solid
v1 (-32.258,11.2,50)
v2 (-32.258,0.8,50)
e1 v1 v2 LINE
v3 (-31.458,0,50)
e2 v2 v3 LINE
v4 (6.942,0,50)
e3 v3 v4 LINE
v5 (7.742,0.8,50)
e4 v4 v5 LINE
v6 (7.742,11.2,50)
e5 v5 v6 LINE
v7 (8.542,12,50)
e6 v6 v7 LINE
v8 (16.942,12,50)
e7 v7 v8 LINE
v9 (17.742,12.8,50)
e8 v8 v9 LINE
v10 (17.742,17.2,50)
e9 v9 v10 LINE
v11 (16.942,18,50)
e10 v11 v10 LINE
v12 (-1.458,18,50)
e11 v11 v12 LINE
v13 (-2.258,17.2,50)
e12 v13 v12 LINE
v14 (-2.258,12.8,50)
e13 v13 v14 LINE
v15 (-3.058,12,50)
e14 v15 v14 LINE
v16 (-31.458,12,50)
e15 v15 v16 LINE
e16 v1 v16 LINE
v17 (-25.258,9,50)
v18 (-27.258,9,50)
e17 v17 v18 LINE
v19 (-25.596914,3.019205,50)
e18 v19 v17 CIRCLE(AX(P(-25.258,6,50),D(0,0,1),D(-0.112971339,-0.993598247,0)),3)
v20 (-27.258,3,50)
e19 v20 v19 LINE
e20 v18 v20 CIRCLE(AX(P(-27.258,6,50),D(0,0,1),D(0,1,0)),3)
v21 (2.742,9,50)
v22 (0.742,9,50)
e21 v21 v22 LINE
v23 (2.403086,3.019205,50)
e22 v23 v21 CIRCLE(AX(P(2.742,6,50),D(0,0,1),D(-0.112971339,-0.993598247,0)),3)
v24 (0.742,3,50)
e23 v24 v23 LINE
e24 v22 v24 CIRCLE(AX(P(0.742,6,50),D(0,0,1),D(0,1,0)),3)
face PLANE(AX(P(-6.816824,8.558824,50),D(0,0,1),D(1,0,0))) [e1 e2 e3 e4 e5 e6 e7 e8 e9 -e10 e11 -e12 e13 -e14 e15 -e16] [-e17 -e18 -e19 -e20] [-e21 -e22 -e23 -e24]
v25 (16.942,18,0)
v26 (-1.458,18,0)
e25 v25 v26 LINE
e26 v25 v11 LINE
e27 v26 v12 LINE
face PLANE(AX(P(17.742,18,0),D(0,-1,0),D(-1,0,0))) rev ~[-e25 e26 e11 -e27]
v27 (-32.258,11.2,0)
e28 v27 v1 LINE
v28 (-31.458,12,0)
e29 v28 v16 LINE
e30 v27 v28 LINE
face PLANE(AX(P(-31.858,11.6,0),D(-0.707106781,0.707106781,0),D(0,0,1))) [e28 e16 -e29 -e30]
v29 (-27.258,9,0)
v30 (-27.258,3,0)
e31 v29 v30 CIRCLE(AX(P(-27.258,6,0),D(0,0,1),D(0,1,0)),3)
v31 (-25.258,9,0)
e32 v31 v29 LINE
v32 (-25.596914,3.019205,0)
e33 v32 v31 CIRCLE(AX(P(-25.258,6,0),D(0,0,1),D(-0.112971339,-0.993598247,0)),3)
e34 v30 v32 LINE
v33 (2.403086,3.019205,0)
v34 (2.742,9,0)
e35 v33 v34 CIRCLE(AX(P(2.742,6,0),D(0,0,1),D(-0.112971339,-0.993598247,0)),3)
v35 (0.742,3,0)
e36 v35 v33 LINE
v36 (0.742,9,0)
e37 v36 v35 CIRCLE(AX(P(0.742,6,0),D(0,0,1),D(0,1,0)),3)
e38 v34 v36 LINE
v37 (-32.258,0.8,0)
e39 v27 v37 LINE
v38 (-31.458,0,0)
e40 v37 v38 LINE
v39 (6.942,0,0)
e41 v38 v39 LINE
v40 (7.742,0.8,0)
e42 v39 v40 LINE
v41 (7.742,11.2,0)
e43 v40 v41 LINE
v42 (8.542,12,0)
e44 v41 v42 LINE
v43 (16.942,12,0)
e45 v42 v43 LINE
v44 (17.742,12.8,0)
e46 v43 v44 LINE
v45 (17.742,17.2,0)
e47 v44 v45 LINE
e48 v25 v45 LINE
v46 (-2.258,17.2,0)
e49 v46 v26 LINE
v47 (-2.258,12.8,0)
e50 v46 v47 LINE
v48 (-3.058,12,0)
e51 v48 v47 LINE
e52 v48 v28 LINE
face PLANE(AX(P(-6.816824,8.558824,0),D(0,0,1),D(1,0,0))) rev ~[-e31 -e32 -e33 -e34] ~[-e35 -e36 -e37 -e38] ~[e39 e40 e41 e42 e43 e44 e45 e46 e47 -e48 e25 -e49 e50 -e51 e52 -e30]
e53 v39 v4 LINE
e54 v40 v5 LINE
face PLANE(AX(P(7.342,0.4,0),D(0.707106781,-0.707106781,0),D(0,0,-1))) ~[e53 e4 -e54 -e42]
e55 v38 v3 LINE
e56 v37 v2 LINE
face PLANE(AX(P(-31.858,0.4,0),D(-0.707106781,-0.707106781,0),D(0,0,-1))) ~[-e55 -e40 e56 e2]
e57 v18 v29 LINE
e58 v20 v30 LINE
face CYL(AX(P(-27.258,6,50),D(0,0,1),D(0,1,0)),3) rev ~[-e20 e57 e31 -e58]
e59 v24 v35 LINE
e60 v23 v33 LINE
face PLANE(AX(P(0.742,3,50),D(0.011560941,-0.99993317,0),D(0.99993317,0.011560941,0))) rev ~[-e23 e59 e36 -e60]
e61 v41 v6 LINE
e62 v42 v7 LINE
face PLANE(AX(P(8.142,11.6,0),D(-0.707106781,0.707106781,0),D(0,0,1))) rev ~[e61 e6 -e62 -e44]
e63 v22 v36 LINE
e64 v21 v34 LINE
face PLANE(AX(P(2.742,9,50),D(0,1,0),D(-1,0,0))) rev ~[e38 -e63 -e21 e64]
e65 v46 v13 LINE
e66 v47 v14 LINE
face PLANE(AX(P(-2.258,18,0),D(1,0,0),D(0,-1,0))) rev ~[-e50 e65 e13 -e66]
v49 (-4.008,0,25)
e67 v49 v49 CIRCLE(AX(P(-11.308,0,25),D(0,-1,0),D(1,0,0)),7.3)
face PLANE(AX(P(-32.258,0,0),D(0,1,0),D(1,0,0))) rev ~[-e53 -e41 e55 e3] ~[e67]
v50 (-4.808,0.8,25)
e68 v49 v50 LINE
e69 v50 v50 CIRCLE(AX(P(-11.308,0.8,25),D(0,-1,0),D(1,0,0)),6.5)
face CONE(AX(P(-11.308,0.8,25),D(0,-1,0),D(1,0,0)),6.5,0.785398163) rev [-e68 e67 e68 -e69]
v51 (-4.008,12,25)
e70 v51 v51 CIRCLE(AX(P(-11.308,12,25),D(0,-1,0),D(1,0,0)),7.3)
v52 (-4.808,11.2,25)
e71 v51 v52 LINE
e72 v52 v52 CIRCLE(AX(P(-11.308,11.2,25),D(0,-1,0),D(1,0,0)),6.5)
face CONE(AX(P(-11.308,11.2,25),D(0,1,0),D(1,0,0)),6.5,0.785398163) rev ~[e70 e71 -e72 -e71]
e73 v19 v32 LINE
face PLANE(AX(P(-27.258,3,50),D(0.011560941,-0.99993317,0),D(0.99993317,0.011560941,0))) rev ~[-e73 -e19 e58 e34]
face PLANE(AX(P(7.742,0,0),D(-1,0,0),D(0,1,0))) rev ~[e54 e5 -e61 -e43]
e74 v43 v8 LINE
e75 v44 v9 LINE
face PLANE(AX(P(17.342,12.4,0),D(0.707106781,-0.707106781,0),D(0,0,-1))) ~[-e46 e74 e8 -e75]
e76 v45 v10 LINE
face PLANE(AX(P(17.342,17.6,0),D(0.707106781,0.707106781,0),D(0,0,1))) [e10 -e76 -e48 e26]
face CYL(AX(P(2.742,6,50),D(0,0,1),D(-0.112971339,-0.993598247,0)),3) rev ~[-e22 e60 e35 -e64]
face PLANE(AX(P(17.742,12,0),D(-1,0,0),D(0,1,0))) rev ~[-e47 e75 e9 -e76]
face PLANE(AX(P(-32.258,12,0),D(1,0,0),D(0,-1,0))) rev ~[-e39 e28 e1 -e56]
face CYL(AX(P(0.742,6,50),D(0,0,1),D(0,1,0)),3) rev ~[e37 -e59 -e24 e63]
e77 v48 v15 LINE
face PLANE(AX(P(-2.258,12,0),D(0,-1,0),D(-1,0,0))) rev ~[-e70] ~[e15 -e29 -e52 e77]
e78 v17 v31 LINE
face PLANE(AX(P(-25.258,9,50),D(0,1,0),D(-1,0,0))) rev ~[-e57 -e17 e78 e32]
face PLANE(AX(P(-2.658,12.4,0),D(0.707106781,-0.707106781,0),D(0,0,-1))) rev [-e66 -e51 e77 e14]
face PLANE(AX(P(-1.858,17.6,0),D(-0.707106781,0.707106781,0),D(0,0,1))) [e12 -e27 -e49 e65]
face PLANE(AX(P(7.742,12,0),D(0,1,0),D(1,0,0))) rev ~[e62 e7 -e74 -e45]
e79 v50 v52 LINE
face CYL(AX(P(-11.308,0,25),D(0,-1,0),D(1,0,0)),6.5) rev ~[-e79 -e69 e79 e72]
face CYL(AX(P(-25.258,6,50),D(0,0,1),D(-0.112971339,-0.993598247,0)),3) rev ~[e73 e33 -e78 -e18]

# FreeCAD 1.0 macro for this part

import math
import FreeCAD as App
import Part
import Sketcher
from FreeCAD import Vector


def edges_at(feature, points):
    """Names of the edges that pass closest to the given points."""
    edges = feature.Shape.Edges
    near = lambda p: min(range(len(edges)), key=lambda i: edges[i].distToShape(Part.Vertex(*p))[0])
    return sorted({f"Edge{near(p) + 1}" for p in points})


def add_polygon(sketch, points):
    """Adds a closed chain of lines whose ends are joined by coincident constraints."""
    first, n = sketch.GeometryCount, len(points)
    for a, b in zip(points, points[1:] + points[:1]):
        sketch.addGeometry(Part.LineSegment(App.Vector(*a, 0), App.Vector(*b, 0)), False)
    for i in range(n):
        sketch.addConstraint(Sketcher.Constraint("Coincident", first + i, 2, first + (i + 1) % n, 1))

doc = App.newDocument("Part")
body = doc.addObject("PartDesign::Body", "Body")

sketch1 = body.newObject("Sketcher::SketchObject", "Sketch")
sketch1.AttachmentSupport = (doc.getObject("XY_Plane"), [""])
sketch1.MapMode = "FlatFace"
add_polygon(sketch1, [(-32.258, 12), (-32.258, 0), (7.742, 0), (7.742, 12), (17.742, 12), (17.742, 18), (-2.258, 18), (-2.258, 12)])
sketch1.addConstraint([
    Sketcher.Constraint("Vertical", 0),
    Sketcher.Constraint("Horizontal", 1),
    Sketcher.Constraint("Vertical", 2),
    Sketcher.Constraint("Horizontal", 3),
    Sketcher.Constraint("Vertical", 4),
    Sketcher.Constraint("Horizontal", 5),
    Sketcher.Constraint("Vertical", 6),
    Sketcher.Constraint("Horizontal", 7),
    Sketcher.Constraint("PointOnObject", 0, 2, -1),
    Sketcher.Constraint("Horizontal", 3, 2, 6, 2),
    Sketcher.Constraint("DistanceX", 1, 1, 1, 2, 40.0),
    Sketcher.Constraint("DistanceX", 3, 1, 3, 2, 10.0),
    Sketcher.Constraint("DistanceX", 5, 2, 5, 1, 20.0),
    Sketcher.Constraint("DistanceY", 0, 2, 0, 1, 12.0),
    Sketcher.Constraint("DistanceY", 4, 1, 4, 2, 6.0),
    Sketcher.Constraint("DistanceX", 0, 2, -1, 1, 32.258),
])
pad1 = body.newObject("PartDesign::Pad", "Pad")
pad1.Profile = sketch1
pad1.Length = 50

sketch2 = body.newObject("Sketcher::SketchObject", "Sketch001")
sketch2.AttachmentSupport = (doc.getObject("XY_Plane"), [""])
sketch2.MapMode = "FlatFace"
sketch2.AttachmentOffset = App.Placement(Vector(0, 0, 50), App.Rotation())
sketch2.addGeometry([
    Part.LineSegment(Vector(-25.258, 9, 0), Vector(-27.258, 9, 0)),
    Part.ArcOfCircle(Part.Circle(Vector(-27.258, 6, 0), Vector(0, 0, 1), 3), math.radians(90), math.radians(270)),
    Part.LineSegment(Vector(-27.258, 3, 0), Vector(-25.596914, 3.019205, 0)),
    Part.ArcOfCircle(Part.Circle(Vector(-25.258, 6, 0), Vector(0, 0, 1), 3), math.radians(-96.486629), math.radians(90.000001)),
    Part.LineSegment(Vector(0.742, 3, 0), Vector(2.403086, 3.019205, 0)),
    Part.ArcOfCircle(Part.Circle(Vector(2.742, 6, 0), Vector(0, 0, 1), 3), math.radians(-96.486629), math.radians(90.000001)),
    Part.LineSegment(Vector(2.742, 9, 0), Vector(0.742, 9, 0)),
    Part.ArcOfCircle(Part.Circle(Vector(0.742, 6, 0), Vector(0, 0, 1), 3), math.radians(90), math.radians(270)),
], False)
sketch2.addConstraint([
    Sketcher.Constraint("Tangent", 0, 2, 1, 1),
    Sketcher.Constraint("Coincident", 1, 2, 2, 1),
    Sketcher.Constraint("Coincident", 2, 2, 3, 1),
    Sketcher.Constraint("Tangent", 3, 2, 0, 1),
    Sketcher.Constraint("Coincident", 4, 2, 5, 1),
    Sketcher.Constraint("Tangent", 5, 2, 6, 1),
    Sketcher.Constraint("Tangent", 6, 2, 7, 1),
    Sketcher.Constraint("Coincident", 7, 2, 4, 1),
    Sketcher.Constraint("Horizontal", 0),
    Sketcher.Constraint("Horizontal", 6),
    Sketcher.Constraint("Equal", 1, 3),
    Sketcher.Constraint("Equal", 3, 5),
    Sketcher.Constraint("Equal", 5, 7),
    Sketcher.Constraint("Parallel", 2, 4),
    Sketcher.Constraint("Horizontal", 3, 3, 5, 3),
    Sketcher.Constraint("Horizontal", 2, 2, 4, 2),
    Sketcher.Constraint("Vertical", 0, 2, 1, 2),
    Sketcher.Constraint("Vertical", 6, 2, 7, 2),
    Sketcher.Constraint("Radius", 1, 3.0),
    Sketcher.Constraint("DistanceX", 0, 2, 0, 1, 2.0),
    Sketcher.Constraint("DistanceY", -1, 1, 1, 3, 6.0),
    Sketcher.Constraint("DistanceX", 3, 3, 5, 3, 28.0),
    Sketcher.Constraint("DistanceX", 1, 3, -1, 1, 27.258),
    Sketcher.Constraint("Distance", 2, 1.661197),
])
pocket1 = body.newObject("PartDesign::Pocket", "Pocket")
pocket1.Profile = sketch2
pocket1.Length = 55

sketch3 = body.newObject("Sketcher::SketchObject", "Sketch002")
sketch3.AttachmentSupport = (doc.getObject("XZ_Plane"), [""])
sketch3.MapMode = "FlatFace"
sketch3.addGeometry(Part.Circle(Vector(-11.308, 25, 0), Vector(0, 0, 1), 6.5), False)
sketch3.addConstraint([
    Sketcher.Constraint("Diameter", 0, 13.0),
    Sketcher.Constraint("DistanceY", -1, 1, 0, 3, 25.0),
    Sketcher.Constraint("DistanceX", 0, 3, -1, 1, 11.308),
])
pocket2 = body.newObject("PartDesign::Pocket", "Pocket001")
pocket2.Profile = sketch3
pocket2.Length = 13
doc.recompute()

chamfer = body.newObject("PartDesign::Chamfer", "Chamfer")
chamfer.Base = (pocket2, edges_at(pocket2, [
    (7.742, 0, 25),
    (7.742, 12, 25),
    (17.742, 12, 25),
    (17.742, 18, 25),
    (-32.258, 12, 25),
    (-32.258, 0, 25),
    (-2.258, 12, 25),
    (-2.258, 18, 25),
    (-17.808, 12, 25),
    (-17.808, 0, 25),
]))
chamfer.Size = 0.8

doc.recompute()
